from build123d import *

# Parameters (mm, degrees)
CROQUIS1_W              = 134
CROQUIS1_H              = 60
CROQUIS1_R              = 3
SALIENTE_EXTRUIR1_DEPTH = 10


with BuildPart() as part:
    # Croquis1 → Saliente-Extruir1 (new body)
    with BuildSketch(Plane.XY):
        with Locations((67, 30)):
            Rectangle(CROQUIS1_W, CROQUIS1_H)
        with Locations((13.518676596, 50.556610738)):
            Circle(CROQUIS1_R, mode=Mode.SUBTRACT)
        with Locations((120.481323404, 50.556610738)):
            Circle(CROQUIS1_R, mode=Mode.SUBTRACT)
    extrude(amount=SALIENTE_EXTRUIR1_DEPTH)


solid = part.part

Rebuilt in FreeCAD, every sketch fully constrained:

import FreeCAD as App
import Part
import Sketcher

V = App.Vector
Q = App.Units.Quantity


def add_polygon(sketch, points):
    """Adds a closed chain of lines whose ends are joined by coincident constraints."""
    first, n = sketch.GeometryCount, len(points)
    for a, b in zip(points, points[1:] + points[:1]):
        sketch.addGeometry(Part.LineSegment(App.Vector(*a, 0), App.Vector(*b, 0)), False)
    for i in range(n):
        sketch.addConstraint(Sketcher.Constraint("Coincident", first + i, 2, first + (i + 1) % n, 1))

doc = App.newDocument("Part")
body = doc.addObject("PartDesign::Body", "Body")

# Sketch on XY plane
sketch1 = body.newObject("Sketcher::SketchObject", "Sketch")
sketch1.AttachmentSupport = (doc.getObject("XY_Plane"), [""])
sketch1.MapMode = "FlatFace"
add_polygon(sketch1, [(0, 60), (0, 0), (134, 0), (134, 60)])  # lines 0-3
sketch1.addGeometry(Part.Circle(V(13.518677, 50.556611, 0), V(0, 0, 1), 3), False)  # 4
sketch1.addGeometry(Part.Circle(V(120.481323, 50.556611, 0), V(0, 0, 1), 3), False)  # 5
sketch1.addConstraint([
    Sketcher.Constraint("Vertical", 0),
    Sketcher.Constraint("Horizontal", 1),
    Sketcher.Constraint("Vertical", 2),
    Sketcher.Constraint("Horizontal", 3),
    Sketcher.Constraint("Coincident", 0, 2, -1, 1),
    Sketcher.Constraint("Equal", 4, 5),
    Sketcher.Constraint("Horizontal", 4, 3, 5, 3),
    Sketcher.Constraint("Diameter", 4, Q("6 mm")),
    Sketcher.Constraint("DistanceX", 1, 1, 1, 2, Q("134 mm")),
    Sketcher.Constraint("DistanceY", 0, 2, 0, 1, Q("60 mm")),
    Sketcher.Constraint("DistanceY", -1, 1, 4, 3, Q("50.556611 mm")),
    Sketcher.Constraint("DistanceX", -1, 1, 4, 3, Q("13.518677 mm")),
    Sketcher.Constraint("DistanceX", -1, 1, 5, 3, Q("120.481323 mm")),
])
pad1 = body.newObject("PartDesign::Pad", "Pad")
pad1.Profile = sketch1
pad1.Length = 10

doc.recompute()
